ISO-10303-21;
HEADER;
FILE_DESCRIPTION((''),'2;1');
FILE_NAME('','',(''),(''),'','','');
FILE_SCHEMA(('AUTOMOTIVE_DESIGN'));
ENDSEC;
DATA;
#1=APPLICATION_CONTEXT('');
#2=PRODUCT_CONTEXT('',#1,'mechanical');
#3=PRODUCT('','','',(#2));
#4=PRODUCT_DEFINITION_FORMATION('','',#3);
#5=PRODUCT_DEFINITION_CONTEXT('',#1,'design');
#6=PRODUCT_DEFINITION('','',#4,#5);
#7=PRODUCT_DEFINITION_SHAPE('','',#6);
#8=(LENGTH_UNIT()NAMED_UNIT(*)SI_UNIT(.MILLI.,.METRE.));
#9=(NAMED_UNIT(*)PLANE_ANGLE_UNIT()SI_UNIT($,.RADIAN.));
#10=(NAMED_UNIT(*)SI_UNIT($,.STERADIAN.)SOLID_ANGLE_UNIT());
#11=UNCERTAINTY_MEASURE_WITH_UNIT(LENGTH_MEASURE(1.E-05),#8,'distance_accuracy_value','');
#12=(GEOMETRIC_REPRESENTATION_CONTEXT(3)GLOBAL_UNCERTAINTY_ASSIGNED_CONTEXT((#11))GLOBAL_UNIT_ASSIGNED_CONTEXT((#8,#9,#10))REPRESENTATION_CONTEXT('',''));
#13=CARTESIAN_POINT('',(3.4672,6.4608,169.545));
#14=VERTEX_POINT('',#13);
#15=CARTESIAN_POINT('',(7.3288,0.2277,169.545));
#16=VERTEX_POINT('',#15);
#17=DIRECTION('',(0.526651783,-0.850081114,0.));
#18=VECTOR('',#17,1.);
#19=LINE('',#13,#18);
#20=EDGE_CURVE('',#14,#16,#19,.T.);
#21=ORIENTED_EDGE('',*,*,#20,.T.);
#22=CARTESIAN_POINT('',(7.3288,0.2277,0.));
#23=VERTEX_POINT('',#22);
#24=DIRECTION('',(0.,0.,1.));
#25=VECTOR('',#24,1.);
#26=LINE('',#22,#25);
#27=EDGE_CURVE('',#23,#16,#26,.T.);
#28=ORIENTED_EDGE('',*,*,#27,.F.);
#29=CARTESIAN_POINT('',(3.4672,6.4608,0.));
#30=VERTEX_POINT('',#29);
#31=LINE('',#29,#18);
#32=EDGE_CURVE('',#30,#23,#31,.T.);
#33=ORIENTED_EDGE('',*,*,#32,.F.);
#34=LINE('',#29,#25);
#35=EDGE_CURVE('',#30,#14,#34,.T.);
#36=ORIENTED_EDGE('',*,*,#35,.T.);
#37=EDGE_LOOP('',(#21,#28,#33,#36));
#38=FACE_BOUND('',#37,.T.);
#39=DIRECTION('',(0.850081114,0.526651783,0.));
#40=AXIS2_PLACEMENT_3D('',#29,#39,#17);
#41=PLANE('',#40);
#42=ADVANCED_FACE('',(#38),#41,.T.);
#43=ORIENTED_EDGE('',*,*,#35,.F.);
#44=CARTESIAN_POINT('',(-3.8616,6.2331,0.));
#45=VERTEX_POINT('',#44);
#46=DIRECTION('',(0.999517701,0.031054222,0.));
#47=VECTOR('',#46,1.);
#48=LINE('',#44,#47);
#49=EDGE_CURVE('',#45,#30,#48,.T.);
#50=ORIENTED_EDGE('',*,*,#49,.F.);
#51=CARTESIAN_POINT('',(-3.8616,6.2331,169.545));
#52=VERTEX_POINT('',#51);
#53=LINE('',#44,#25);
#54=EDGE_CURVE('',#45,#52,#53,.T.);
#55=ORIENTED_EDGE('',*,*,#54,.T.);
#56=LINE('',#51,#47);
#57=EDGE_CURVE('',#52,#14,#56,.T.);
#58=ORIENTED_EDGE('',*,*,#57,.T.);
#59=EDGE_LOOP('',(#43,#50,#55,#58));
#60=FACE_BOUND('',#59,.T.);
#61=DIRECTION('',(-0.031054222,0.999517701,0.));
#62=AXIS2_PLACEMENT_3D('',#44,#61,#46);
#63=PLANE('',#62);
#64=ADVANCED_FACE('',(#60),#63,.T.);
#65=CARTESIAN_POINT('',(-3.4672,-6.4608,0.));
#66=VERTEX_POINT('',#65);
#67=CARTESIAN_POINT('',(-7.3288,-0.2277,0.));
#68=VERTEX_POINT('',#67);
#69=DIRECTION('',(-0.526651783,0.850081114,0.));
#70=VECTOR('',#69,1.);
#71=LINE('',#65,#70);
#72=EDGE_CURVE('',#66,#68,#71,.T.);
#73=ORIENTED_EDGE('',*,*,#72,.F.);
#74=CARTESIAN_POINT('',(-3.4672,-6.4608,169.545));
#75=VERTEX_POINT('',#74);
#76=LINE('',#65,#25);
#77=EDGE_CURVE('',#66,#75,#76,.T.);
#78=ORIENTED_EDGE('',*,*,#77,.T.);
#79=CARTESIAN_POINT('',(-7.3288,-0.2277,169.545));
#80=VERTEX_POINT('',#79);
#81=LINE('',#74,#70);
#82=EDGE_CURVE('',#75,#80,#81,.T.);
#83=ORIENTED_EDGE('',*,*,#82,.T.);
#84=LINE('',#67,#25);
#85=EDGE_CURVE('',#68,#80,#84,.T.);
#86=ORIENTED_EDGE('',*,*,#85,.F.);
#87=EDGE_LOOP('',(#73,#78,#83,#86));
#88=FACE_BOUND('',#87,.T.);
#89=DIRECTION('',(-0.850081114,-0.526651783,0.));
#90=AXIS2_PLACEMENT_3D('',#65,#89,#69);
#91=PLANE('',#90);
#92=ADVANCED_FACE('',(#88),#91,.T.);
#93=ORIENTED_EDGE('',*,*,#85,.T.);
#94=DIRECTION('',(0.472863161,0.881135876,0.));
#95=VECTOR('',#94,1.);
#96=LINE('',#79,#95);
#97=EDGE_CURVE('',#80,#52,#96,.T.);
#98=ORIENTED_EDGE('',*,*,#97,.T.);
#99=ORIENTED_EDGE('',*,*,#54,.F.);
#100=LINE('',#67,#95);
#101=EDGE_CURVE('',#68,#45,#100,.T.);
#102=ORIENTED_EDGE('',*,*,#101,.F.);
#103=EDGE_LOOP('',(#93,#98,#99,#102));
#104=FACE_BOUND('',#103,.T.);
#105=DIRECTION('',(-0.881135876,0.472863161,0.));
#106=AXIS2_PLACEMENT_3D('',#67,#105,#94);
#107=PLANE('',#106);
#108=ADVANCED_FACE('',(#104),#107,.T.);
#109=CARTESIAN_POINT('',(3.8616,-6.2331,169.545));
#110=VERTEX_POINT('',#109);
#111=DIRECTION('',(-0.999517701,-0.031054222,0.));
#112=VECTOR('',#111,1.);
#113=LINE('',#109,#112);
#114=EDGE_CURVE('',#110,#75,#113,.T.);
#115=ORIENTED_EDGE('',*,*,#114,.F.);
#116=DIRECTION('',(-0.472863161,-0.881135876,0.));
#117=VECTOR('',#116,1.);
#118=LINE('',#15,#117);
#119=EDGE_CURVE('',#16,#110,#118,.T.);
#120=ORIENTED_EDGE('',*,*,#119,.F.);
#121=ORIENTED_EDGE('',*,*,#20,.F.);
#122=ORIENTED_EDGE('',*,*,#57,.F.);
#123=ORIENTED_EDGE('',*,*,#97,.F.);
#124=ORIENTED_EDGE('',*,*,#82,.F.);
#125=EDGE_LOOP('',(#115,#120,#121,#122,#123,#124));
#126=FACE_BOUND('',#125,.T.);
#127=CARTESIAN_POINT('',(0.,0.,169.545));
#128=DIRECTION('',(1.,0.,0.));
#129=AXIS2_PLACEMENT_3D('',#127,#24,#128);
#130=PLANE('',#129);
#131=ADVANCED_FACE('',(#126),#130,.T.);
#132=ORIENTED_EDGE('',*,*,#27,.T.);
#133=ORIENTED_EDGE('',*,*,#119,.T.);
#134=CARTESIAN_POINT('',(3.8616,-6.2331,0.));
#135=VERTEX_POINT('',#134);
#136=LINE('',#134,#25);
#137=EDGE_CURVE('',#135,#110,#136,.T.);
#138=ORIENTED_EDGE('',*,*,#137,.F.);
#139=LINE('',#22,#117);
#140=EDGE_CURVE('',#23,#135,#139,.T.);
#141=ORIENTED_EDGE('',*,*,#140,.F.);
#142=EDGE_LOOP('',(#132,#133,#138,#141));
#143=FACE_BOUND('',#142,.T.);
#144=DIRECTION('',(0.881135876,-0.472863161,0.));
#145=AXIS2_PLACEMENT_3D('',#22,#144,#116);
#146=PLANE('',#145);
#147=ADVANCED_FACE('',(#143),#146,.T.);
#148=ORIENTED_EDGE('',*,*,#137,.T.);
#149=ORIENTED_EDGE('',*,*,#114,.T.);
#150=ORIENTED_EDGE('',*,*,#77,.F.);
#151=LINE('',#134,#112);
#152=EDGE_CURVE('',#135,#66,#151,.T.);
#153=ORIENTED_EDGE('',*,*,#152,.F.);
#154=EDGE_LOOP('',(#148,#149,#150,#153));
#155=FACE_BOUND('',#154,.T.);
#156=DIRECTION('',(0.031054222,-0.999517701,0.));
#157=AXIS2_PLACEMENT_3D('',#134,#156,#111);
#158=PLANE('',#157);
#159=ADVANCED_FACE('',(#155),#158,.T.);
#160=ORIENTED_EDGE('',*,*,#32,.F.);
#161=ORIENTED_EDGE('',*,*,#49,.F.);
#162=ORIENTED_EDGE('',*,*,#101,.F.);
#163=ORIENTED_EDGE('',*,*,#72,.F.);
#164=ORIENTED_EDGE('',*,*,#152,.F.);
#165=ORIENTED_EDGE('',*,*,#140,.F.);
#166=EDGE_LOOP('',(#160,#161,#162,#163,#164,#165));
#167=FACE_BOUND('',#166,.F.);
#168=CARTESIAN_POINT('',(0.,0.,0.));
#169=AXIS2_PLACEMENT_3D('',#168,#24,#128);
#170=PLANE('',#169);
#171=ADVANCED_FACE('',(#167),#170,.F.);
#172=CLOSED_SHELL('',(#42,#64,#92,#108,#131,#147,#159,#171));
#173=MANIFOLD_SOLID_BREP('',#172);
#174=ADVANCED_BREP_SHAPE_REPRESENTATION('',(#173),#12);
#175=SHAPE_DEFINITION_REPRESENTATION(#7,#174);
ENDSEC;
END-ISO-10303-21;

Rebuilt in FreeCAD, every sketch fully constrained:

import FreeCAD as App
import Part
import Sketcher
Q = App.Units.Quantity


def add_polygon(sketch, points):
    """Adds a closed chain of lines whose ends are joined by coincident constraints."""
    first, n = sketch.GeometryCount, len(points)
    for a, b in zip(points, points[1:] + points[:1]):
        sketch.addGeometry(Part.LineSegment(App.Vector(*a, 0), App.Vector(*b, 0)), False)
    for i in range(n):
        sketch.addConstraint(Sketcher.Constraint("Coincident", first + i, 2, first + (i + 1) % n, 1))

doc = App.newDocument("Part")
params = doc.addObject("Spreadsheet::Sheet", "Params")
for row, (alias, value) in enumerate([
    ("pad1_length", "6.675 in"),
], start=1):
    params.set(f"A{row}", alias)
    params.set(f"B{row}", "=" + value)
    params.setAlias(f"B{row}", alias)

body = doc.addObject("PartDesign::Body", "Body")

# Sketch on XY plane
sketch1 = body.newObject("Sketcher::SketchObject", "Sketch")
sketch1.AttachmentSupport = (doc.getObject("XY_Plane"), [""])
sketch1.MapMode = "FlatFace"
add_polygon(sketch1, [(-4, 6), (-7, 0), (-3, -6), (4, -6), (7, 0), (3, 6)])  # lines 0-5
sketch1.addConstraint([
    Sketcher.Constraint("Symmetric", 0, 2, 3, 2, -1, 1),
    Sketcher.Constraint("Symmetric", 1, 2, 4, 2, -1, 1),
    Sketcher.Constraint("Symmetric", 2, 2, 5, 2, -1, 1),
    Sketcher.Constraint("Equal", 0, 1),
    Sketcher.Constraint("Equal", 1, 2),
    Sketcher.Constraint("Angle", 0, Q("-118.2203 deg")),
    Sketcher.Constraint("Angle", 1, Q("-58.2205 deg")),
    Sketcher.Constraint("Angle", 2, Q("1.7796 deg")),
    Sketcher.Constraint("DistanceX", 1, 2, 4, 2, Q("0.273 in")),
])
pad1 = body.newObject("PartDesign::Pad", "Pad")
pad1.Profile = sketch1
pad1.setExpression("Length", "Params.pad1_length")

doc.recompute()
